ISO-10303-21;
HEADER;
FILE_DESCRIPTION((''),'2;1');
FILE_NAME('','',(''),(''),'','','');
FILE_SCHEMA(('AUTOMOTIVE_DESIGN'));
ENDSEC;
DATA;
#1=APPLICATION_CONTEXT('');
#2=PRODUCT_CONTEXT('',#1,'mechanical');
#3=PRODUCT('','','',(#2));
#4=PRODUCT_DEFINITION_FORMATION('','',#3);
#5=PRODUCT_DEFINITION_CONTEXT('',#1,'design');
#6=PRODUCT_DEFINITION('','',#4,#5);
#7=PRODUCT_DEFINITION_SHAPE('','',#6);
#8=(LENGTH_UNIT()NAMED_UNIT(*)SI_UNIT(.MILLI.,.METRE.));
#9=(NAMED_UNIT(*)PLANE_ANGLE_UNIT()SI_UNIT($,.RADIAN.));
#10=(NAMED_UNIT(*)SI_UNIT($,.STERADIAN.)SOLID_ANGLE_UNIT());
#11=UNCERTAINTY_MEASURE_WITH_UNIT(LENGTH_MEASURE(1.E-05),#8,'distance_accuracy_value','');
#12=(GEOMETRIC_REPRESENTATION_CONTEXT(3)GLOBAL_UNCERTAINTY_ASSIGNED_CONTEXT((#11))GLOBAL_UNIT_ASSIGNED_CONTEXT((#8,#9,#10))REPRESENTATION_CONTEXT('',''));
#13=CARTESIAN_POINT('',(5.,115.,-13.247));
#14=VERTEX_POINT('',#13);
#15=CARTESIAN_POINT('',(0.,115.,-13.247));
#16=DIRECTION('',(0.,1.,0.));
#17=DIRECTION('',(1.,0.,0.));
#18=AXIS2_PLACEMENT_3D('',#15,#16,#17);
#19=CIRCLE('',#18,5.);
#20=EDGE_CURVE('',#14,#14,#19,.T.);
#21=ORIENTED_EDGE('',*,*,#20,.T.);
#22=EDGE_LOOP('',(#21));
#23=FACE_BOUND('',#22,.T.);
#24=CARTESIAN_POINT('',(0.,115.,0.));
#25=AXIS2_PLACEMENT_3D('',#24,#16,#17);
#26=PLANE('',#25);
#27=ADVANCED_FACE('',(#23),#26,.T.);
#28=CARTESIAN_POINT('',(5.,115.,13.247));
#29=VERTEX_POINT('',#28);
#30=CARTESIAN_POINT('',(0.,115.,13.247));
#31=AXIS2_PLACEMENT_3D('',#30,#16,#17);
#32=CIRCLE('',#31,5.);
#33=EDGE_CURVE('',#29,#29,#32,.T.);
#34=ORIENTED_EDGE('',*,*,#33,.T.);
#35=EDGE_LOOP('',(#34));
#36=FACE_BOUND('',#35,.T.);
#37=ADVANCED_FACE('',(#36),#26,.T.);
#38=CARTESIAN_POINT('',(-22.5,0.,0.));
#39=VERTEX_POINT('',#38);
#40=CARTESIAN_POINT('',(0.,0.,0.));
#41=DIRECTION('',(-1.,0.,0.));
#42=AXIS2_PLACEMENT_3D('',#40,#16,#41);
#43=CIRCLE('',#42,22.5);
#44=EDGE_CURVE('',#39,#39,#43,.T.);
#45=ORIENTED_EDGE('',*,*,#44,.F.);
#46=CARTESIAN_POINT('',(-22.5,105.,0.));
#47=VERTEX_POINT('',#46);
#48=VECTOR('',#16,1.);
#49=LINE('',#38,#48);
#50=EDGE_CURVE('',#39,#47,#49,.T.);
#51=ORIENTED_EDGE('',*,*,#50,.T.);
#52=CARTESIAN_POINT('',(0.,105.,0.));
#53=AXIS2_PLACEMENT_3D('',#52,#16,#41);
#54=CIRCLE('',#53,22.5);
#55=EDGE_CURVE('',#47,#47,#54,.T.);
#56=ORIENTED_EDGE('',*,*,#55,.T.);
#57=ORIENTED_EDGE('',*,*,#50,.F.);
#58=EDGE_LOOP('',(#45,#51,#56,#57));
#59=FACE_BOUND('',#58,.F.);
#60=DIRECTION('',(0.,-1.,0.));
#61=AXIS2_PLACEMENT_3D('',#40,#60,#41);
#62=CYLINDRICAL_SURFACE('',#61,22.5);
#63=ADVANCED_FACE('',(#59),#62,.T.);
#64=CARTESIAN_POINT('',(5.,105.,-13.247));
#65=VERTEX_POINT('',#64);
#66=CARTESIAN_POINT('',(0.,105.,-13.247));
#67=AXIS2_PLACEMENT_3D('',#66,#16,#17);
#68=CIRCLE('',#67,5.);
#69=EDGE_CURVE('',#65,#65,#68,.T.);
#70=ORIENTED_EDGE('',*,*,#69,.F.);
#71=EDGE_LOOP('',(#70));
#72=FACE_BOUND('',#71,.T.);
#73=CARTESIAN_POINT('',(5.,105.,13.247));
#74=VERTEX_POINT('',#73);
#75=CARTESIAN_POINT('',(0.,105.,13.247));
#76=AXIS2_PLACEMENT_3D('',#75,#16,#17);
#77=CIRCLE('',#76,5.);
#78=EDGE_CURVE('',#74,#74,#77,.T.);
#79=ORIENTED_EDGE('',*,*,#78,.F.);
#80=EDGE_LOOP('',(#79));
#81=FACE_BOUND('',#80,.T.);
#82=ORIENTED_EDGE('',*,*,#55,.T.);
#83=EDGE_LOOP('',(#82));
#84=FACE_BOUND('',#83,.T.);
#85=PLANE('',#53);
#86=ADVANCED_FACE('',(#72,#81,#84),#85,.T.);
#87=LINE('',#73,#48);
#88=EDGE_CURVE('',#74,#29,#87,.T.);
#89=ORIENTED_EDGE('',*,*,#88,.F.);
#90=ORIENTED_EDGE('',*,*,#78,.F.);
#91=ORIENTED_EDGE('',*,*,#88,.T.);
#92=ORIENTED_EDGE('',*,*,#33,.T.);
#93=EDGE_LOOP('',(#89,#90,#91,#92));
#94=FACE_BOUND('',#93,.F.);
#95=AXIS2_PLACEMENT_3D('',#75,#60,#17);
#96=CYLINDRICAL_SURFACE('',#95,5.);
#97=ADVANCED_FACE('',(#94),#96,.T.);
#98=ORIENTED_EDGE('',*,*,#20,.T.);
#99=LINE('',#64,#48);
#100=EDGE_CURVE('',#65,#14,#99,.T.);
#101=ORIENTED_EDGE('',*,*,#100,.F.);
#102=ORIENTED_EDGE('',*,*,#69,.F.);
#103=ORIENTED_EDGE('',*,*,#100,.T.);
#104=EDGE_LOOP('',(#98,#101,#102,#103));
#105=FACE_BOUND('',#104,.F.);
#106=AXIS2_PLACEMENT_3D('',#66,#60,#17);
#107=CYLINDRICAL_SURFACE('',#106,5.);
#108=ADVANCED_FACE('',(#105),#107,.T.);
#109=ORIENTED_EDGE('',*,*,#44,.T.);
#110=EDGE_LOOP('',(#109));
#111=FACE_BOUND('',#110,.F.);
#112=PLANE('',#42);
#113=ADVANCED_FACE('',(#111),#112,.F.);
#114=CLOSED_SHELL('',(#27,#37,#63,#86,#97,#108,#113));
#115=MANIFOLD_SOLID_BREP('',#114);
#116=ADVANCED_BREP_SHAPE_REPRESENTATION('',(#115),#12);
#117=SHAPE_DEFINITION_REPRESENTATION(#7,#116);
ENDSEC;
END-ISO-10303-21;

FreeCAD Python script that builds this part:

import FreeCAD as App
import Part
import Sketcher

V = App.Vector
Q = App.Units.Quantity

doc = App.newDocument("Part")
body = doc.addObject("PartDesign::Body", "Body")

# Sketch on XZ plane
sketch1 = doc.addObject("Sketcher::SketchObject", "Sketch")
body.addObject(sketch1)
sketch1.AttachmentSupport = (doc.XZ_Plane, [""])
sketch1.MapMode = "FlatFace"
sketch1.addGeometry(Part.Circle(V(0, 0, 0), V(0, 0, 1), 22.5), False)
sketch1.addConstraint([
    Sketcher.Constraint("Coincident", 0, 3, -1, 1),
    Sketcher.Constraint("Diameter", 0, Q("45 mm")),
])
pad1 = doc.addObject("PartDesign::Pad", "Pad")
body.addObject(pad1)
pad1.Profile = sketch1
pad1.Length = 105
pad1.Reversed = True

# Sketch on XZ plane
sketch2 = doc.addObject("Sketcher::SketchObject", "Sketch001")
body.addObject(sketch2)
sketch2.AttachmentSupport = (doc.XZ_Plane, [""])
sketch2.MapMode = "FlatFace"
sketch2.AttachmentOffset = App.Placement(V(0, 0, -105), App.Rotation())
sketch2.addGeometry([
    Part.Circle(V(0, 13.247, 0), V(0, 0, 1), 5),
    Part.Circle(V(0, -13.247, 0), V(0, 0, 1), 5),
], False)
sketch2.addConstraint([
    Sketcher.Constraint("Equal", 0, 1),
    Sketcher.Constraint("Symmetric", 0, 3, 1, 3, -1, 1),
    Sketcher.Constraint("PointOnObject", 0, 3, -2),
    Sketcher.Constraint("Diameter", 0, Q("10 mm")),
    Sketcher.Constraint("DistanceY", -1, 1, 0, 3, Q("13.247 mm")),
])
pad2 = doc.addObject("PartDesign::Pad", "Pad001")
body.addObject(pad2)
pad2.Profile = sketch2
pad2.Length = 10
pad2.Reversed = True

doc.recompute()
